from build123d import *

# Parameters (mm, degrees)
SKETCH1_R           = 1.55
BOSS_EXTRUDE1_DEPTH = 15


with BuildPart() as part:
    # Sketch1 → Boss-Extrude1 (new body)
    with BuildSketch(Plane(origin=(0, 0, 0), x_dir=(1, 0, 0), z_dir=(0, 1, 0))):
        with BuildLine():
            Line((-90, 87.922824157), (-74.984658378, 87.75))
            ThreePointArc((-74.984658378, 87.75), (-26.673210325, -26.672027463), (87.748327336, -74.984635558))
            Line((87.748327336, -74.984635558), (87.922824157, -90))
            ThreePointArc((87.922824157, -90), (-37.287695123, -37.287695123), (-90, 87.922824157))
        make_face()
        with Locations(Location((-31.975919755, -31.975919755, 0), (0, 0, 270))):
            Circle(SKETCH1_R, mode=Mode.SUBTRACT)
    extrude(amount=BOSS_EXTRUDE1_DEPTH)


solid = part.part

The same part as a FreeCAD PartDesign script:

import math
import FreeCAD as App
import Part
import Sketcher
from FreeCAD import Vector
Q = App.Units.Quantity

doc = App.newDocument("Part")
body = doc.addObject("PartDesign::Body", "Body")

# Sketch on XZ plane
sketch1 = doc.addObject("Sketcher::SketchObject", "Sketch")
body.addObject(sketch1)
sketch1.AttachmentSupport = (doc.XZ_Plane, [""])
sketch1.MapMode = "FlatFace"
sketch1.addGeometry([
    Part.LineSegment(Vector(-74.984658, -87.75, 0), Vector(-90, -87.922824, 0)),  # 0
    Part.ArcOfCircle(Part.Circle(Vector(90, -90, 0), Vector(0, 0, 1), 180.011985), math.radians(90.661156), math.radians(179.338844)),  # 1
    Part.LineSegment(Vector(87.922824, 90, 0), Vector(87.748327, 74.984636, 0)),  # 2
    Part.ArcOfCircle(Part.Circle(Vector(90, -90, 0), Vector(0, 0, 1), 165), math.radians(90.781911), math.radians(179.21867)),  # 3
    Part.Circle(Vector(-31.97592, 31.97592, 0), Vector(0, 0, 1), 1.55),  # 4
], False)
sketch1.addConstraint([
    Sketcher.Constraint("Coincident", 0, 2, 1, 2),
    Sketcher.Constraint("Coincident", 1, 1, 2, 1),
    Sketcher.Constraint("Coincident", 2, 2, 3, 1),
    Sketcher.Constraint("Coincident", 3, 2, 0, 1),
    Sketcher.Constraint("Coincident", 3, 3, 1, 3),
    Sketcher.Constraint("Radius", 3, Q("165 mm")),
    Sketcher.Constraint("Diameter", 4, Q("3.1 mm")),
    Sketcher.Constraint("DistanceX", -1, 1, 1, 3, Q("90 mm")),
    Sketcher.Constraint("DistanceY", 1, 3, -1, 1, Q("90 mm")),
    Sketcher.Constraint("DistanceX", 0, 2, -1, 1, Q("90 mm")),
    Sketcher.Constraint("DistanceY", -1, 1, 1, 1, Q("90 mm")),
    Sketcher.Constraint("DistanceY", 3, 2, -1, 1, Q("87.75 mm")),
    Sketcher.Constraint("Radius", 1, Q("180.011985 mm")),
    Sketcher.Constraint("Distance", 2, Q("15.016378 mm")),
    Sketcher.Constraint("DistanceX", 4, 3, -1, 1, Q("31.97592 mm")),
    Sketcher.Constraint("DistanceY", -1, 1, 4, 3, Q("31.97592 mm")),
])
pad1 = doc.addObject("PartDesign::Pad", "Pad")
body.addObject(pad1)
pad1.Profile = sketch1
pad1.Length = 15
pad1.Reversed = True

doc.recompute()
